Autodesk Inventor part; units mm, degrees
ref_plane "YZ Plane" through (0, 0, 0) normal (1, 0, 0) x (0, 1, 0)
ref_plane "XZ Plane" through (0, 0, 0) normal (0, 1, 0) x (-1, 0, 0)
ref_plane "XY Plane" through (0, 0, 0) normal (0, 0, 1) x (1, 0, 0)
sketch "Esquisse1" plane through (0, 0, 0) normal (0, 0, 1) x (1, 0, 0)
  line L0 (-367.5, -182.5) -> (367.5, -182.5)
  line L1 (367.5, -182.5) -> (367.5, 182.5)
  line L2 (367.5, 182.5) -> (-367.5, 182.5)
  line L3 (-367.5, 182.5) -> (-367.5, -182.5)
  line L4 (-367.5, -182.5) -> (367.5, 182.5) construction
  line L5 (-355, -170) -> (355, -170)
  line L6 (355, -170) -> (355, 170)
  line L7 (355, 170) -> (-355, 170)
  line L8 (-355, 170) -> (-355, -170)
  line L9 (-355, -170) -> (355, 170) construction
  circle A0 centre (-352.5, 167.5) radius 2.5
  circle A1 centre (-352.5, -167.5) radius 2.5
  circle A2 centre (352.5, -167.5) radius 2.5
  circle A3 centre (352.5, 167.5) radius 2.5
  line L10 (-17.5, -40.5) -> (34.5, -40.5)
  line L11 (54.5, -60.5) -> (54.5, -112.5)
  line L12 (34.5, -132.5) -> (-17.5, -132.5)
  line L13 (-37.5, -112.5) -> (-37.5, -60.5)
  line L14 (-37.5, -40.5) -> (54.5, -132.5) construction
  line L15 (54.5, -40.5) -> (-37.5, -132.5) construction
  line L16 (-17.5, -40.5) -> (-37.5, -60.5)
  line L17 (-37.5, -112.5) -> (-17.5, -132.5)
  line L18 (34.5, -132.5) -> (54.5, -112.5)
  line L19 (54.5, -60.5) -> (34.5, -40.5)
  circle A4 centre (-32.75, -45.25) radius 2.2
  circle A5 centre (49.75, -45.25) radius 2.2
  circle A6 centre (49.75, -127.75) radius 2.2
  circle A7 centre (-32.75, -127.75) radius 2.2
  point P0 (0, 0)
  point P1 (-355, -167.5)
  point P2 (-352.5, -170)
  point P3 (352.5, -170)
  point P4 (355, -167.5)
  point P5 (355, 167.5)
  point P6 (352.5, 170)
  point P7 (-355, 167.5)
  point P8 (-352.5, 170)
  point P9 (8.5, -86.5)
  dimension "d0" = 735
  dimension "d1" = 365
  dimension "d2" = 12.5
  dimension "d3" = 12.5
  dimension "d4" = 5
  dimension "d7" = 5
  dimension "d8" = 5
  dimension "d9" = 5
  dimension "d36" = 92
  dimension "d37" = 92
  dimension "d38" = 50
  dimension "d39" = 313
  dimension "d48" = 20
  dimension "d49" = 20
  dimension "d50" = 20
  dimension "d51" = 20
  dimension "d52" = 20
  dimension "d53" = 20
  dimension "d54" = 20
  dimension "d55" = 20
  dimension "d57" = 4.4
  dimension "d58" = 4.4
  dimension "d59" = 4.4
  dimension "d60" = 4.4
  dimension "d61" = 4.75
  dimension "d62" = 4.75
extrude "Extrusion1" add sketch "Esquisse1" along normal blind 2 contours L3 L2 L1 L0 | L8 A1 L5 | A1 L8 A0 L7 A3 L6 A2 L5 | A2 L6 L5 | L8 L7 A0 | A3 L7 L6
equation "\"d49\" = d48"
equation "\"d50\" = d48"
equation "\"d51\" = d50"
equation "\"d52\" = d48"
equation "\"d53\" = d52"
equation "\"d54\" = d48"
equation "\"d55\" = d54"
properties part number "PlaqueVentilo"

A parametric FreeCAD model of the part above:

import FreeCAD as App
import Part
import Sketcher

doc = App.newDocument("Part")
params = doc.addObject("Spreadsheet::Sheet", "Params")
for row, (alias, value) in enumerate([
    ("sketch1_diameter", "5 mm"),
    ("sketch1_diameter2", "4.4 mm"),
    ("sketch1_width", "735 mm"),
    ("sketch1_height", "365 mm"),
    ("sketch1_width2", "52 mm"),
    ("pad1_length", "2 mm"),
], start=1):
    params.set(f"A{row}", alias)
    params.set(f"B{row}", "=" + value)
    params.setAlias(f"B{row}", alias)

body = doc.addObject("PartDesign::Body", "Body")

sketch1 = doc.addObject("Sketcher::SketchObject", "Sketch")
body.addObject(sketch1)
sketch1.AttachmentSupport = (doc.XY_Plane, [""])
sketch1.MapMode = "FlatFace"
sketch1.addGeometry(Part.LineSegment(App.Vector(-367.5, 182.5, 0), App.Vector(-367.5, -182.5, 0)), False)
sketch1.addGeometry(Part.LineSegment(App.Vector(-367.5, -182.5, 0), App.Vector(367.5, -182.5, 0)), False)
sketch1.addGeometry(Part.LineSegment(App.Vector(367.5, -182.5, 0), App.Vector(367.5, 182.5, 0)), False)
sketch1.addGeometry(Part.LineSegment(App.Vector(367.5, 182.5, 0), App.Vector(-367.5, 182.5, 0)), False)
sketch1.addGeometry(Part.Circle(App.Vector(-352.5, -167.5, 0), App.Vector(0, 0, 1), 2.5), False)
sketch1.addGeometry(Part.LineSegment(App.Vector(54.5, -60.5, 0), App.Vector(54.5, -112.5, 0)), False)
sketch1.addGeometry(Part.LineSegment(App.Vector(54.5, -112.5, 0), App.Vector(34.5, -132.5, 0)), False)
sketch1.addGeometry(Part.LineSegment(App.Vector(34.5, -132.5, 0), App.Vector(-17.5, -132.5, 0)), False)
sketch1.addGeometry(Part.LineSegment(App.Vector(-17.5, -132.5, 0), App.Vector(-37.5, -112.5, 0)), False)
sketch1.addGeometry(Part.LineSegment(App.Vector(-37.5, -112.5, 0), App.Vector(-37.5, -60.5, 0)), False)
sketch1.addGeometry(Part.LineSegment(App.Vector(-37.5, -60.5, 0), App.Vector(-17.5, -40.5, 0)), False)
sketch1.addGeometry(Part.LineSegment(App.Vector(-17.5, -40.5, 0), App.Vector(34.5, -40.5, 0)), False)
sketch1.addGeometry(Part.LineSegment(App.Vector(34.5, -40.5, 0), App.Vector(54.5, -60.5, 0)), False)
sketch1.addGeometry(Part.Circle(App.Vector(-352.5, 167.5, 0), App.Vector(0, 0, 1), 2.5), False)
sketch1.addGeometry(Part.Circle(App.Vector(352.5, 167.5, 0), App.Vector(0, 0, 1), 2.5), False)
sketch1.addGeometry(Part.Circle(App.Vector(352.5, -167.5, 0), App.Vector(0, 0, 1), 2.5), False)
sketch1.addGeometry(Part.Circle(App.Vector(49.75, -45.25, 0), App.Vector(0, 0, 1), 2.2), False)
sketch1.addGeometry(Part.Circle(App.Vector(-32.75, -127.75, 0), App.Vector(0, 0, 1), 2.2), False)
sketch1.addGeometry(Part.Circle(App.Vector(-32.75, -45.25, 0), App.Vector(0, 0, 1), 2.2), False)
sketch1.addGeometry(Part.Circle(App.Vector(49.75, -127.75, 0), App.Vector(0, 0, 1), 2.2), False)
sketch1.addConstraint(Sketcher.Constraint("Coincident", 0, 2, 1, 1))
sketch1.addConstraint(Sketcher.Constraint("Coincident", 1, 2, 2, 1))
sketch1.addConstraint(Sketcher.Constraint("Coincident", 2, 2, 3, 1))
sketch1.addConstraint(Sketcher.Constraint("Coincident", 3, 2, 0, 1))
sketch1.addConstraint(Sketcher.Constraint("Coincident", 5, 2, 6, 1))
sketch1.addConstraint(Sketcher.Constraint("Coincident", 6, 2, 7, 1))
sketch1.addConstraint(Sketcher.Constraint("Coincident", 7, 2, 8, 1))
sketch1.addConstraint(Sketcher.Constraint("Coincident", 8, 2, 9, 1))
sketch1.addConstraint(Sketcher.Constraint("Coincident", 9, 2, 10, 1))
sketch1.addConstraint(Sketcher.Constraint("Coincident", 10, 2, 11, 1))
sketch1.addConstraint(Sketcher.Constraint("Coincident", 11, 2, 12, 1))
sketch1.addConstraint(Sketcher.Constraint("Coincident", 12, 2, 5, 1))
sketch1.addConstraint(Sketcher.Constraint("Vertical", 0))
sketch1.addConstraint(Sketcher.Constraint("Horizontal", 1))
sketch1.addConstraint(Sketcher.Constraint("Vertical", 2))
sketch1.addConstraint(Sketcher.Constraint("Horizontal", 3))
sketch1.addConstraint(Sketcher.Constraint("Vertical", 5))
sketch1.addConstraint(Sketcher.Constraint("Horizontal", 7))
sketch1.addConstraint(Sketcher.Constraint("Vertical", 9))
sketch1.addConstraint(Sketcher.Constraint("Horizontal", 11))
sketch1.addConstraint(Sketcher.Constraint("Equal", 4, 13))
sketch1.addConstraint(Sketcher.Constraint("Equal", 13, 14))
sketch1.addConstraint(Sketcher.Constraint("Equal", 14, 15))
sketch1.addConstraint(Sketcher.Constraint("Equal", 16, 17))
sketch1.addConstraint(Sketcher.Constraint("Equal", 17, 18))
sketch1.addConstraint(Sketcher.Constraint("Equal", 18, 19))
sketch1.addConstraint(Sketcher.Constraint("Symmetric", 4, 3, 14, 3, -1, 1))
sketch1.addConstraint(Sketcher.Constraint("Symmetric", 13, 3, 15, 3, -1, 1))
sketch1.addConstraint(Sketcher.Constraint("Symmetric", 0, 2, 2, 2, -1, 1))
sketch1.addConstraint(Sketcher.Constraint("Symmetric", 13, 3, 14, 3, -2))
sketch1.addConstraint(Sketcher.Constraint("Perpendicular", 6, 8))
sketch1.addConstraint(Sketcher.Constraint("Perpendicular", 8, 10))
sketch1.addConstraint(Sketcher.Constraint("Perpendicular", 10, 12))
sketch1.addConstraint(Sketcher.Constraint("Horizontal", 16, 3, 18, 3))
sketch1.addConstraint(Sketcher.Constraint("Horizontal", 17, 3, 19, 3))
sketch1.addConstraint(Sketcher.Constraint("Horizontal", 5, 2, 8, 2))
sketch1.addConstraint(Sketcher.Constraint("Horizontal", 9, 2, 12, 2))
sketch1.addConstraint(Sketcher.Constraint("Vertical", 17, 3, 18, 3))
sketch1.addConstraint(Sketcher.Constraint("Vertical", 16, 3, 19, 3))
sketch1.addConstraint(Sketcher.Constraint("Vertical", 7, 2, 10, 2))
sketch1.addConstraint(Sketcher.Constraint("Vertical", 6, 2, 11, 2))
sketch1.addConstraint(Sketcher.Constraint("Equal", 11, 5))
sketch1.addConstraint(Sketcher.Constraint("Diameter", 4, 5.0))
sketch1.addConstraint(Sketcher.Constraint("Diameter", 16, 4.4))
sketch1.addConstraint(Sketcher.Constraint("DistanceX", 1, 1, 1, 2, 735.0))
sketch1.addConstraint(Sketcher.Constraint("DistanceY", 0, 2, 0, 1, 365.0))
sketch1.addConstraint(Sketcher.Constraint("DistanceX", 6, 2, 5, 2, 20.0))
sketch1.addConstraint(Sketcher.Constraint("DistanceX", 7, 2, 7, 1, 52.0))
sketch1.addConstraint(Sketcher.Constraint("DistanceX", 19, 3, 5, 2, 4.75))
sketch1.addConstraint(Sketcher.Constraint("DistanceY", 6, 2, 19, 3, 4.75))
sketch1.addConstraint(Sketcher.Constraint("DistanceX", 8, 2, 17, 3, 4.75))
sketch1.addConstraint(Sketcher.Constraint("DistanceY", 18, 3, 10, 2, 4.75))
sketch1.addConstraint(Sketcher.Constraint("DistanceY", 4, 3, 13, 3, 335.0))
sketch1.addConstraint(Sketcher.Constraint("DistanceX", 13, 3, 14, 3, 705.0))
sketch1.addConstraint(Sketcher.Constraint("DistanceX", 5, 2, 15, 3, 298.0))
sketch1.addConstraint(Sketcher.Constraint("DistanceY", 15, 3, 5, 2, 55.0))
sketch1.setExpression("Constraints[42]", "Params.sketch1_diameter")
sketch1.setExpression("Constraints[43]", "Params.sketch1_diameter2")
sketch1.setExpression("Constraints[44]", "Params.sketch1_width")
sketch1.setExpression("Constraints[45]", "Params.sketch1_height")
sketch1.setExpression("Constraints[47]", "Params.sketch1_width2")
pad1 = doc.addObject("PartDesign::Pad", "Pad")
body.addObject(pad1)
pad1.Profile = sketch1
pad1.setExpression("Length", "Params.pad1_length")

doc.recompute()
